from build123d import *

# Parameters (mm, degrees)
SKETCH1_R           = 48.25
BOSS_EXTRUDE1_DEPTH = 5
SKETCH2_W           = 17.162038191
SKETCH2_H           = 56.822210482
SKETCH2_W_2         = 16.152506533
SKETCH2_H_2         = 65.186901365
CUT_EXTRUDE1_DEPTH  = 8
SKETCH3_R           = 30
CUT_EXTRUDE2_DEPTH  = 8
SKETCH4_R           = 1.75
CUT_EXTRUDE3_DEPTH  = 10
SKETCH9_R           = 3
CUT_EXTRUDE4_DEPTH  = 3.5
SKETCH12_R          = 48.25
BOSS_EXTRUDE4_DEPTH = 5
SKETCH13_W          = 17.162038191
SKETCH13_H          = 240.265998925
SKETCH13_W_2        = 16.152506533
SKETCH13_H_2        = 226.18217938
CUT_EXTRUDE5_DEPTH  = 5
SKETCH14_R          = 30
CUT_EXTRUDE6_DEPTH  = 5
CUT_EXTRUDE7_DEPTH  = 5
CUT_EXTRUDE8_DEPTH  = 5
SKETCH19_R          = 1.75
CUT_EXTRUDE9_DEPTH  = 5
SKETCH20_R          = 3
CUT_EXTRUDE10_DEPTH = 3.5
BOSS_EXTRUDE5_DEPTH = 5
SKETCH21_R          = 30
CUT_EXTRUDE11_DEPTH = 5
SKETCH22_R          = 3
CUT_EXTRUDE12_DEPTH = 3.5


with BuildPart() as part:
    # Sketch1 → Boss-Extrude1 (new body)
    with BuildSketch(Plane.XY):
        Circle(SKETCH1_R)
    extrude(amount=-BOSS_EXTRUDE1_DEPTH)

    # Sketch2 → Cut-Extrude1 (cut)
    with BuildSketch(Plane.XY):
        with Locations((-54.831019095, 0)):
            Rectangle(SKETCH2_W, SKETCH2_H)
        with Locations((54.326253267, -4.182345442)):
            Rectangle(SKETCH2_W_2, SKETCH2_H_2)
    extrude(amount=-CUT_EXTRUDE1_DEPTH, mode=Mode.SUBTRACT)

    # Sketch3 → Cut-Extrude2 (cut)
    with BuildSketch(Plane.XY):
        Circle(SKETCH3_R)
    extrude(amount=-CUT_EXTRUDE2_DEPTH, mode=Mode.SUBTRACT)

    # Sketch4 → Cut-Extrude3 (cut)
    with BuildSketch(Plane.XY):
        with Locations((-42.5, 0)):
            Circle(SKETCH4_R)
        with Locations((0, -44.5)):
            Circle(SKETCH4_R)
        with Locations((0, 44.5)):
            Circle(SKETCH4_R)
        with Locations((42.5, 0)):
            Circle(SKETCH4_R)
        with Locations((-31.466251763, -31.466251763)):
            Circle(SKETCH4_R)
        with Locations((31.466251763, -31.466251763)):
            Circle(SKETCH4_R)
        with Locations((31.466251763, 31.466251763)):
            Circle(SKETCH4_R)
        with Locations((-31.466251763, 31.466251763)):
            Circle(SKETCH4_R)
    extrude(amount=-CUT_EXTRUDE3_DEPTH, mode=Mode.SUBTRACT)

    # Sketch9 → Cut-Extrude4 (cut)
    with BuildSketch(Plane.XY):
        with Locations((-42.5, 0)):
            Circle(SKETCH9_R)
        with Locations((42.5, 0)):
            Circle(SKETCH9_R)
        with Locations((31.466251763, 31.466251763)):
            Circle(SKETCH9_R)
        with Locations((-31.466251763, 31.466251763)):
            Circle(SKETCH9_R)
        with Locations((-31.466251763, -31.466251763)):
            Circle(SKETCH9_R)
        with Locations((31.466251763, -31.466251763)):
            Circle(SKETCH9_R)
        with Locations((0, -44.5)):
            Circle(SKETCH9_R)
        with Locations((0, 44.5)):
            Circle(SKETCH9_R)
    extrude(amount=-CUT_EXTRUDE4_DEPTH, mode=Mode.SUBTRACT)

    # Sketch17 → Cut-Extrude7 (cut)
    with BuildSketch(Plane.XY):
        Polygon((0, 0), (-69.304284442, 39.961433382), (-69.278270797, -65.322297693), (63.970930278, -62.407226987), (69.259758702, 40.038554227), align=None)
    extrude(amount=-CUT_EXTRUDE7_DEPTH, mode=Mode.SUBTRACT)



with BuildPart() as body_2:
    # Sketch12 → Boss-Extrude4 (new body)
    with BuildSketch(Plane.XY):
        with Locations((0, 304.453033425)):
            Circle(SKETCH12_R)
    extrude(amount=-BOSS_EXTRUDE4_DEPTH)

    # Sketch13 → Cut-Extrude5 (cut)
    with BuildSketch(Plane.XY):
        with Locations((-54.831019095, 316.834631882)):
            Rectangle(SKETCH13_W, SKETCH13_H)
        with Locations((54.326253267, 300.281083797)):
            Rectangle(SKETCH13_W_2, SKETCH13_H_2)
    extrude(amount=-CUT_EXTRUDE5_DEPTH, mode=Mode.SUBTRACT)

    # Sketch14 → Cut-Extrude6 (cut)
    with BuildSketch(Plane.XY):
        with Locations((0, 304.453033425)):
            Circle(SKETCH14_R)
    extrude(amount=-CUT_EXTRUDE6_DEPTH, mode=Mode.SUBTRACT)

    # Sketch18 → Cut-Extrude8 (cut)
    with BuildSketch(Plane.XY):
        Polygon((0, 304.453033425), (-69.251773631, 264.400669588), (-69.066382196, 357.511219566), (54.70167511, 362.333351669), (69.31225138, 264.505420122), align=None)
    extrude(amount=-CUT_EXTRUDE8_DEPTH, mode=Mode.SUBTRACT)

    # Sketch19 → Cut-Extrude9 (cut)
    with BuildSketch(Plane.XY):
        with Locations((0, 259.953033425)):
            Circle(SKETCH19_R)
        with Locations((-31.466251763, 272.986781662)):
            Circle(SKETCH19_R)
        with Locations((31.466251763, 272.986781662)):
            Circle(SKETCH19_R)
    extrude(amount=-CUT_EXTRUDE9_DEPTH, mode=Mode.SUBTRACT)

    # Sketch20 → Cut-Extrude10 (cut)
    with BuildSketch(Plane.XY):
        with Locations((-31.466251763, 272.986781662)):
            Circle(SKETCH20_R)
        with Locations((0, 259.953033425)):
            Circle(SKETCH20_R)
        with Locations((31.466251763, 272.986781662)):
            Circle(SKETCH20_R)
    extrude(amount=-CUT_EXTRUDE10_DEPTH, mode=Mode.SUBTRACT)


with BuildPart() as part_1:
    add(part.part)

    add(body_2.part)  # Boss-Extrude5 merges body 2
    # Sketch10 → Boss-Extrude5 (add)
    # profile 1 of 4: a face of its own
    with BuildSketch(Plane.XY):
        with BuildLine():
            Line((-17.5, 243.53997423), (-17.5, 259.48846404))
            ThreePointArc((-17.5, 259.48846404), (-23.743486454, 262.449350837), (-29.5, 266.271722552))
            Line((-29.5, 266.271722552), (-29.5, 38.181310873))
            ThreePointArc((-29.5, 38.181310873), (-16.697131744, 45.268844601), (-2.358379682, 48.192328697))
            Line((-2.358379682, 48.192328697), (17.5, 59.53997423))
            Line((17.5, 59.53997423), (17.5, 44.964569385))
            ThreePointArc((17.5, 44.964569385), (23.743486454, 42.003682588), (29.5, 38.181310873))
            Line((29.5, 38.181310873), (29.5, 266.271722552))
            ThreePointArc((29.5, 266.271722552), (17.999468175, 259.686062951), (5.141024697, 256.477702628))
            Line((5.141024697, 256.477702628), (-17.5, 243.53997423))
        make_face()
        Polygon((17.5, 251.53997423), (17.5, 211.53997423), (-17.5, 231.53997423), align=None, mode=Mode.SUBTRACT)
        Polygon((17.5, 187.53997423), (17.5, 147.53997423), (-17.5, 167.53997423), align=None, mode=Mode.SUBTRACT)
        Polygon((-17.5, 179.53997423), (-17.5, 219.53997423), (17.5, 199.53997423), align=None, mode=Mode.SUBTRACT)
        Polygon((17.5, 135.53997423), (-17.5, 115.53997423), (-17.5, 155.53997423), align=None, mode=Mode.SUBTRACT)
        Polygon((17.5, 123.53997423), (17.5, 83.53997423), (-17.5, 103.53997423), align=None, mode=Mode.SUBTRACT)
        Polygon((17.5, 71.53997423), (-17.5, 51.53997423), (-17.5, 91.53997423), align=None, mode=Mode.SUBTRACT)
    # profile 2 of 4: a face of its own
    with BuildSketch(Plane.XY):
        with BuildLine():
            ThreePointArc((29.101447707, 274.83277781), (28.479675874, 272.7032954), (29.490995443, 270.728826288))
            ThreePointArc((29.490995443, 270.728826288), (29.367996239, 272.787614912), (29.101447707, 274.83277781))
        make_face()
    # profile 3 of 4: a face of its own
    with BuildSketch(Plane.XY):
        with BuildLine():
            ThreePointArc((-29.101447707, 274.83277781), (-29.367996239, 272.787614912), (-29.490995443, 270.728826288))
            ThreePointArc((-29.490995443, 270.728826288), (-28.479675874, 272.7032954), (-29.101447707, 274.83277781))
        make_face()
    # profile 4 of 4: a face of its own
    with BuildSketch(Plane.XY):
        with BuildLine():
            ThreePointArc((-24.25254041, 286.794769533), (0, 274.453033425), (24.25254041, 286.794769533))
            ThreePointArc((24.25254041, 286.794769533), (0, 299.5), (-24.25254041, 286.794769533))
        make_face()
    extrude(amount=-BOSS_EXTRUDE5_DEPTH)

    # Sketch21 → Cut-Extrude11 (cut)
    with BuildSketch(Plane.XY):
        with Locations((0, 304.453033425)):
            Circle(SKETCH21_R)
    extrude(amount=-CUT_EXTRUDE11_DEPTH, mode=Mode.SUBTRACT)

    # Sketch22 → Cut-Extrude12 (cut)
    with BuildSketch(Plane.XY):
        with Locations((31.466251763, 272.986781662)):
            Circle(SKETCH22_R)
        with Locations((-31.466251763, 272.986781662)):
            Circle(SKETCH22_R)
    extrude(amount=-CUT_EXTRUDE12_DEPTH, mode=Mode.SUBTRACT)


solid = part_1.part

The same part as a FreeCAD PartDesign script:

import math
import FreeCAD as App
import Part
import Sketcher
from FreeCAD import Vector

doc = App.newDocument("Part")
params = doc.addObject("Spreadsheet::Sheet", "Params")
for row, (alias, value) in enumerate([
    ("sketch1_diameter", "96.5 mm"),
    ("pad1_length", "5 mm"),
    ("pocket1_length", "8 mm"),
    ("sketch3_diameter", "60 mm"),
    ("pocket2_length", "8 mm"),
    ("sketch4_diameter", "3.5 mm"),
    ("pocket3_length", "10 mm"),
    ("sketch5_diameter", "6 mm"),
    ("pocket4_length", "3.5 mm"),
    ("sketch6_length", "80 mm"),
    ("pocket5_length", "5 mm"),
    ("sketch7_diameter", "96.5 mm"),
    ("pad2_length", "5 mm"),
    ("pocket6_length", "5 mm"),
    ("sketch9_diameter", "60 mm"),
    ("pocket7_length", "5 mm"),
    ("sketch10_length", "80 mm"),
    ("pocket8_length", "5 mm"),
    ("sketch11_diameter", "3.5 mm"),
    ("pocket9_length", "5 mm"),
    ("sketch12_diameter", "6 mm"),
    ("pocket10_length", "3.5 mm"),
    ("sketch13_radius", "3 mm"),
    ("sketch13_radius2", "30 mm"),
    ("sketch13_radius3", "29.5 mm"),
    ("sketch13_height", "40 mm"),
    ("sketch13_radius4", "48.25 mm"),
    ("pad3_length", "5 mm"),
    ("sketch14_diameter", "60 mm"),
    ("pocket11_length", "5 mm"),
    ("sketch15_diameter", "6 mm"),
    ("pocket12_length", "3.5 mm"),
], start=1):
    params.set(f"A{row}", alias)
    params.set(f"B{row}", "=" + value)
    params.setAlias(f"B{row}", alias)

body = doc.addObject("PartDesign::Body", "Body")

# Sketch on XY plane
sketch1 = doc.addObject("Sketcher::SketchObject", "Sketch")
body.addObject(sketch1)
sketch1.AttachmentSupport = (doc.XY_Plane, [""])
sketch1.MapMode = "FlatFace"
sketch1.addGeometry(Part.Circle(Vector(0, 0, 0), Vector(0, 0, 1), 48), False)
sketch1.addConstraint([
    Sketcher.Constraint("Coincident", 0, 3, -1, 1),
    Sketcher.Constraint("Diameter", 0, 96.5),
])
sketch1.setExpression("Constraints[1]", "Params.sketch1_diameter")
pad1 = doc.addObject("PartDesign::Pad", "Pad")
body.addObject(pad1)
pad1.Profile = sketch1
pad1.setExpression("Length", "Params.pad1_length")
pad1.Reversed = True

# Sketch on XY plane
sketch2 = doc.addObject("Sketcher::SketchObject", "Sketch001")
body.addObject(sketch2)
sketch2.AttachmentSupport = (doc.XY_Plane, [""])
sketch2.MapMode = "FlatFace"
sketch2.addGeometry([
    Part.LineSegment(Vector(-63, 28, 0), Vector(-63, -28, 0)),  # 0
    Part.LineSegment(Vector(-63, -28, 0), Vector(-46, -28, 0)),  # 1
    Part.LineSegment(Vector(-46, -28, 0), Vector(-46, 28, 0)),  # 2
    Part.LineSegment(Vector(-46, 28, 0), Vector(-63, 28, 0)),  # 3
    Part.LineSegment(Vector(46, 28, 0), Vector(46, -37, 0)),  # 4
    Part.LineSegment(Vector(46, -37, 0), Vector(62, -37, 0)),  # 5
    Part.LineSegment(Vector(62, -37, 0), Vector(62, 28, 0)),  # 6
    Part.LineSegment(Vector(62, 28, 0), Vector(46, 28, 0)),  # 7
], False)
sketch2.addConstraint([
    Sketcher.Constraint("Coincident", 0, 2, 1, 1),
    Sketcher.Constraint("Coincident", 1, 2, 2, 1),
    Sketcher.Constraint("Coincident", 2, 2, 3, 1),
    Sketcher.Constraint("Coincident", 3, 2, 0, 1),
    Sketcher.Constraint("Coincident", 4, 2, 5, 1),
    Sketcher.Constraint("Coincident", 5, 2, 6, 1),
    Sketcher.Constraint("Coincident", 6, 2, 7, 1),
    Sketcher.Constraint("Coincident", 7, 2, 4, 1),
    Sketcher.Constraint("Vertical", 0),
    Sketcher.Constraint("Horizontal", 1),
    Sketcher.Constraint("Vertical", 2),
    Sketcher.Constraint("Horizontal", 3),
    Sketcher.Constraint("Vertical", 4),
    Sketcher.Constraint("Horizontal", 5),
    Sketcher.Constraint("Vertical", 6),
    Sketcher.Constraint("Horizontal", 7),
    Sketcher.Constraint("Symmetric", 1, 2, 7, 2, -1, 1),
    Sketcher.Constraint("Horizontal", 3, 2, 6, 2),
    Sketcher.Constraint("DistanceX", 1, 2, 4, 2, 92.5),
    Sketcher.Constraint("DistanceY", 4, 2, 4, 1, 65.186901),
    Sketcher.Constraint("DistanceX", 1, 1, 1, 2, 17.162038),
    Sketcher.Constraint("DistanceY", 0, 2, 0, 1, 56.82221),
    Sketcher.Constraint("DistanceX", 5, 1, 5, 2, 16.152507),
])
pocket1 = doc.addObject("PartDesign::Pocket", "Pocket")
body.addObject(pocket1)
pocket1.Profile = sketch2
pocket1.setExpression("Length", "Params.pocket1_length")

# Sketch on XY plane
sketch3 = doc.addObject("Sketcher::SketchObject", "Sketch002")
body.addObject(sketch3)
sketch3.AttachmentSupport = (doc.XY_Plane, [""])
sketch3.MapMode = "FlatFace"
sketch3.addGeometry(Part.Circle(Vector(0, 0, 0), Vector(0, 0, 1), 30), False)
sketch3.addConstraint([
    Sketcher.Constraint("Coincident", 0, 3, -1, 1),
    Sketcher.Constraint("Diameter", 0, 60.0),
])
sketch3.setExpression("Constraints[1]", "Params.sketch3_diameter")
pocket2 = doc.addObject("PartDesign::Pocket", "Pocket001")
body.addObject(pocket2)
pocket2.Profile = sketch3
pocket2.setExpression("Length", "Params.pocket2_length")

# Sketch on XY plane
sketch4 = doc.addObject("Sketcher::SketchObject", "Sketch003")
body.addObject(sketch4)
sketch4.AttachmentSupport = (doc.XY_Plane, [""])
sketch4.MapMode = "FlatFace"
sketch4.addGeometry([
    Part.Circle(Vector(-42.5, 0, 0), Vector(0, 0, 1), 1.8),  # 0
    Part.Circle(Vector(0, -44.5, 0), Vector(0, 0, 1), 1.8),  # 1
    Part.Circle(Vector(0, 44.5, 0), Vector(0, 0, 1), 1.8),  # 2
    Part.Circle(Vector(42.5, 0, 0), Vector(0, 0, 1), 1.8),  # 3
    Part.Circle(Vector(-31.5, -31.5, 0), Vector(0, 0, 1), 1.8),  # 4
    Part.Circle(Vector(31.5, -31.5, 0), Vector(0, 0, 1), 1.8),  # 5
    Part.Circle(Vector(31.5, 31.5, 0), Vector(0, 0, 1), 1.8),  # 6
    Part.Circle(Vector(-31.5, 31.5, 0), Vector(0, 0, 1), 1.8),  # 7
], False)
sketch4.addConstraint([
    Sketcher.Constraint("Equal", 0, 1),
    Sketcher.Constraint("Equal", 1, 2),
    Sketcher.Constraint("Equal", 2, 3),
    Sketcher.Constraint("Equal", 3, 4),
    Sketcher.Constraint("Equal", 4, 5),
    Sketcher.Constraint("Equal", 5, 6),
    Sketcher.Constraint("Equal", 6, 7),
    Sketcher.Constraint("Symmetric", 1, 3, 2, 3, -1, 1),
    Sketcher.Constraint("Symmetric", 0, 3, 3, 3, -1, 1),
    Sketcher.Constraint("Symmetric", 4, 3, 6, 3, -1, 1),
    Sketcher.Constraint("Symmetric", 5, 3, 7, 3, -1, 1),
    Sketcher.Constraint("Symmetric", 4, 3, 5, 3, -2),
    Sketcher.Constraint("PointOnObject", 0, 3, -1),
    Sketcher.Constraint("PointOnObject", 1, 3, -2),
    Sketcher.Constraint("Diameter", 0, 3.5),
    Sketcher.Constraint("DistanceY", 1, 3, 2, 3, 89.0),
    Sketcher.Constraint("DistanceX", 0, 3, 3, 3, 85.0),
    Sketcher.Constraint("DistanceX", 4, 3, -1, 1, 31.466252),
    Sketcher.Constraint("DistanceY", 4, 3, -1, 1, 31.466252),
])
sketch4.setExpression("Constraints[14]", "Params.sketch4_diameter")
pocket3 = doc.addObject("PartDesign::Pocket", "Pocket002")
body.addObject(pocket3)
pocket3.Profile = sketch4
pocket3.setExpression("Length", "Params.pocket3_length")

# Sketch on XY plane
sketch5 = doc.addObject("Sketcher::SketchObject", "Sketch004")
body.addObject(sketch5)
sketch5.AttachmentSupport = (doc.XY_Plane, [""])
sketch5.MapMode = "FlatFace"
sketch5.addGeometry([
    Part.Circle(Vector(-42.5, 0, 0), Vector(0, 0, 1), 3),  # 0
    Part.Circle(Vector(42.5, 0, 0), Vector(0, 0, 1), 3),  # 1
    Part.Circle(Vector(31.5, 31.5, 0), Vector(0, 0, 1), 3),  # 2
    Part.Circle(Vector(-31.5, 31.5, 0), Vector(0, 0, 1), 3),  # 3
    Part.Circle(Vector(-31.5, -31.5, 0), Vector(0, 0, 1), 3),  # 4
    Part.Circle(Vector(31.5, -31.5, 0), Vector(0, 0, 1), 3),  # 5
    Part.Circle(Vector(0, -44.5, 0), Vector(0, 0, 1), 3),  # 6
    Part.Circle(Vector(0, 44.5, 0), Vector(0, 0, 1), 3),  # 7
], False)
sketch5.addConstraint([
    Sketcher.Constraint("Equal", 0, 1),
    Sketcher.Constraint("Equal", 1, 2),
    Sketcher.Constraint("Equal", 2, 3),
    Sketcher.Constraint("Equal", 3, 4),
    Sketcher.Constraint("Equal", 4, 5),
    Sketcher.Constraint("Equal", 5, 6),
    Sketcher.Constraint("Equal", 6, 7),
    Sketcher.Constraint("Symmetric", 0, 3, 1, 3, -1, 1),
    Sketcher.Constraint("Symmetric", 2, 3, 4, 3, -1, 1),
    Sketcher.Constraint("Symmetric", 3, 3, 5, 3, -1, 1),
    Sketcher.Constraint("Symmetric", 6, 3, 7, 3, -1, 1),
    Sketcher.Constraint("Symmetric", 2, 3, 3, 3, -2),
    Sketcher.Constraint("PointOnObject", 0, 3, -1),
    Sketcher.Constraint("PointOnObject", 6, 3, -2),
    Sketcher.Constraint("Diameter", 0, 6.0),
    Sketcher.Constraint("DistanceX", 0, 3, 1, 3, 85.0),
    Sketcher.Constraint("DistanceY", 6, 3, -1, 1, 44.5),
    Sketcher.Constraint("DistanceX", -1, 1, 2, 3, 31.466252),
    Sketcher.Constraint("DistanceY", -1, 1, 2, 3, 31.466252),
])
sketch5.setExpression("Constraints[14]", "Params.sketch5_diameter")
pocket4 = doc.addObject("PartDesign::Pocket", "Pocket003")
body.addObject(pocket4)
pocket4.Profile = sketch5
pocket4.setExpression("Length", "Params.pocket4_length")

# Sketch on XY plane
sketch6 = doc.addObject("Sketcher::SketchObject", "Sketch005")
body.addObject(sketch6)
sketch6.AttachmentSupport = (doc.XY_Plane, [""])
sketch6.MapMode = "FlatFace"
sketch6.addGeometry([
    Part.LineSegment(Vector(0, 0, 0), Vector(-69, 40, 0)),  # 0
    Part.LineSegment(Vector(-69, 40, 0), Vector(-69, -65, 0)),  # 1
    Part.LineSegment(Vector(-69, -65, 0), Vector(64, -62, 0)),  # 2
    Part.LineSegment(Vector(64, -62, 0), Vector(69, 40, 0)),  # 3
    Part.LineSegment(Vector(69, 40, 0), Vector(0, 0, 0)),  # 4
], False)
sketch6.addConstraint([
    Sketcher.Constraint("Coincident", 0, 2, 1, 1),
    Sketcher.Constraint("Coincident", 1, 2, 2, 1),
    Sketcher.Constraint("Coincident", 2, 2, 3, 1),
    Sketcher.Constraint("Coincident", 3, 2, 4, 1),
    Sketcher.Constraint("Coincident", 4, 2, 0, 1),
    Sketcher.Constraint("Coincident", 4, 2, -1, 1),
    Sketcher.Constraint("Equal", 0, 4),
    Sketcher.Constraint("Distance", 0, 80.0),
    Sketcher.Constraint("DistanceX", 1, 2, 2, 2, 133.249201),
    Sketcher.Constraint("Distance", 3, 102.58221),
    Sketcher.Constraint("DistanceX", 1, 2, -1, 1, 69.278271),
    Sketcher.Constraint("DistanceX", -1, 1, 3, 2, 69.259759),
    Sketcher.Constraint("DistanceY", 1, 2, 0, 2, 105.283731),
    Sketcher.Constraint("DistanceY", 1, 2, 2, 2, 2.915071),
])
sketch6.setExpression("Constraints[7]", "Params.sketch6_length")
pocket5 = doc.addObject("PartDesign::Pocket", "Pocket004")
body.addObject(pocket5)
pocket5.Profile = sketch6
pocket5.setExpression("Length", "Params.pocket5_length")
body2 = doc.addObject("PartDesign::Body", "Body001")

# Sketch on XY plane
sketch7 = doc.addObject("Sketcher::SketchObject", "Sketch006")
body2.addObject(sketch7)
sketch7.AttachmentSupport = (doc.getObject("XY_Plane001"), [""])
sketch7.MapMode = "FlatFace"
sketch7.addGeometry(Part.Circle(Vector(0, 304, 0), Vector(0, 0, 1), 48), False)
sketch7.addConstraint([
    Sketcher.Constraint("PointOnObject", 0, 3, -2),
    Sketcher.Constraint("Diameter", 0, 96.5),
    Sketcher.Constraint("DistanceY", -1, 1, 0, 3, 304.453033),
])
sketch7.setExpression("Constraints[1]", "Params.sketch7_diameter")
pad2 = doc.addObject("PartDesign::Pad", "Pad001")
body2.addObject(pad2)
pad2.Profile = sketch7
pad2.setExpression("Length", "Params.pad2_length")
pad2.Reversed = True

# Sketch on XY plane
sketch8 = doc.addObject("Sketcher::SketchObject", "Sketch007")
body2.addObject(sketch8)
sketch8.AttachmentSupport = (doc.getObject("XY_Plane001"), [""])
sketch8.MapMode = "FlatFace"
sketch8.addGeometry([
    Part.LineSegment(Vector(-63, 437, 0), Vector(-63, 197, 0)),  # 0
    Part.LineSegment(Vector(-63, 197, 0), Vector(-46, 197, 0)),  # 1
    Part.LineSegment(Vector(-46, 197, 0), Vector(-46, 437, 0)),  # 2
    Part.LineSegment(Vector(-46, 437, 0), Vector(-63, 437, 0)),  # 3
    Part.LineSegment(Vector(46, 413, 0), Vector(46, 187, 0)),  # 4
    Part.LineSegment(Vector(46, 187, 0), Vector(62, 187, 0)),  # 5
    Part.LineSegment(Vector(62, 187, 0), Vector(62, 413, 0)),  # 6
    Part.LineSegment(Vector(62, 413, 0), Vector(46, 413, 0)),  # 7
], False)
sketch8.addConstraint([
    Sketcher.Constraint("Coincident", 0, 2, 1, 1),
    Sketcher.Constraint("Coincident", 1, 2, 2, 1),
    Sketcher.Constraint("Coincident", 2, 2, 3, 1),
    Sketcher.Constraint("Coincident", 3, 2, 0, 1),
    Sketcher.Constraint("Coincident", 4, 2, 5, 1),
    Sketcher.Constraint("Coincident", 5, 2, 6, 1),
    Sketcher.Constraint("Coincident", 6, 2, 7, 1),
    Sketcher.Constraint("Coincident", 7, 2, 4, 1),
    Sketcher.Constraint("Vertical", 0),
    Sketcher.Constraint("Horizontal", 1),
    Sketcher.Constraint("Vertical", 2),
    Sketcher.Constraint("Horizontal", 3),
    Sketcher.Constraint("Vertical", 4),
    Sketcher.Constraint("Horizontal", 5),
    Sketcher.Constraint("Vertical", 6),
    Sketcher.Constraint("Horizontal", 7),
    Sketcher.Constraint("DistanceX", 1, 2, 4, 2, 92.5),
    Sketcher.Constraint("DistanceY", 0, 2, 0, 1, 240.265999),
    Sketcher.Constraint("DistanceX", 1, 2, -1, 1, 46.25),
    Sketcher.Constraint("DistanceX", 1, 1, 1, 2, 17.162038),
    Sketcher.Constraint("DistanceY", 4, 2, 4, 1, 226.182179),
    Sketcher.Constraint("DistanceX", 5, 1, 5, 2, 16.152507),
    Sketcher.Constraint("DistanceY", -1, 1, 2, 2, 436.967631),
    Sketcher.Constraint("DistanceY", 4, 2, 1, 2, 9.511638),
])
pocket6 = doc.addObject("PartDesign::Pocket", "Pocket005")
body2.addObject(pocket6)
pocket6.Profile = sketch8
pocket6.setExpression("Length", "Params.pocket6_length")

# Sketch on XY plane
sketch9 = doc.addObject("Sketcher::SketchObject", "Sketch008")
body2.addObject(sketch9)
sketch9.AttachmentSupport = (doc.getObject("XY_Plane001"), [""])
sketch9.MapMode = "FlatFace"
sketch9.addGeometry(Part.Circle(Vector(0, 304, 0), Vector(0, 0, 1), 30), False)
sketch9.addConstraint([
    Sketcher.Constraint("PointOnObject", 0, 3, -2),
    Sketcher.Constraint("Diameter", 0, 60.0),
    Sketcher.Constraint("DistanceY", -1, 1, 0, 3, 304.453033),
])
sketch9.setExpression("Constraints[1]", "Params.sketch9_diameter")
pocket7 = doc.addObject("PartDesign::Pocket", "Pocket006")
body2.addObject(pocket7)
pocket7.Profile = sketch9
pocket7.setExpression("Length", "Params.pocket7_length")

# Sketch on XY plane
sketch10 = doc.addObject("Sketcher::SketchObject", "Sketch009")
body2.addObject(sketch10)
sketch10.AttachmentSupport = (doc.getObject("XY_Plane001"), [""])
sketch10.MapMode = "FlatFace"
sketch10.addGeometry([
    Part.LineSegment(Vector(-69, 264, 0), Vector(0, 304, 0)),  # 0
    Part.LineSegment(Vector(0, 304, 0), Vector(69, 265, 0)),  # 1
    Part.LineSegment(Vector(69, 265, 0), Vector(55, 362, 0)),  # 2
    Part.LineSegment(Vector(55, 362, 0), Vector(-69, 358, 0)),  # 3
    Part.LineSegment(Vector(-69, 358, 0), Vector(-69, 264, 0)),  # 4
], False)
sketch10.addConstraint([
    Sketcher.Constraint("Coincident", 0, 2, 1, 1),
    Sketcher.Constraint("Coincident", 1, 2, 2, 1),
    Sketcher.Constraint("Coincident", 2, 2, 3, 1),
    Sketcher.Constraint("Coincident", 3, 2, 4, 1),
    Sketcher.Constraint("Coincident", 4, 2, 0, 1),
    Sketcher.Constraint("PointOnObject", 0, 2, -2),
    Sketcher.Constraint("Equal", 0, 1),
    Sketcher.Constraint("Distance", 0, 80.0),
    Sketcher.Constraint("DistanceY", 1, 2, 3, 2, 93.005799),
    Sketcher.Constraint("Distance", 3, 123.861959),
    Sketcher.Constraint("DistanceX", -1, 1, 1, 2, 69.312251),
    Sketcher.Constraint("DistanceY", -1, 1, 1, 2, 264.50542),
    Sketcher.Constraint("DistanceY", -1, 1, 2, 2, 362.333352),
    Sketcher.Constraint("DistanceY", -1, 1, 4, 2, 264.40067),
    Sketcher.Constraint("DistanceX", 4, 2, 3, 2, 0.185391),
])
sketch10.setExpression("Constraints[7]", "Params.sketch10_length")
pocket8 = doc.addObject("PartDesign::Pocket", "Pocket007")
body2.addObject(pocket8)
pocket8.Profile = sketch10
pocket8.setExpression("Length", "Params.pocket8_length")

# Sketch on XY plane
sketch11 = doc.addObject("Sketcher::SketchObject", "Sketch010")
body2.addObject(sketch11)
sketch11.AttachmentSupport = (doc.getObject("XY_Plane001"), [""])
sketch11.MapMode = "FlatFace"
sketch11.addGeometry([
    Part.Circle(Vector(0, 260, 0), Vector(0, 0, 1), 1.8),
    Part.Circle(Vector(-31.5, 273, 0), Vector(0, 0, 1), 1.8),
    Part.Circle(Vector(31.5, 273, 0), Vector(0, 0, 1), 1.8),
], False)
sketch11.addConstraint([
    Sketcher.Constraint("Equal", 0, 1),
    Sketcher.Constraint("Equal", 1, 2),
    Sketcher.Constraint("Symmetric", 1, 3, 2, 3, -2),
    Sketcher.Constraint("PointOnObject", 0, 3, -2),
    Sketcher.Constraint("Diameter", 0, 3.5),
    Sketcher.Constraint("DistanceX", 1, 3, -1, 1, 31.466252),
    Sketcher.Constraint("DistanceY", -1, 1, 1, 3, 272.986782),
    Sketcher.Constraint("DistanceY", 0, 3, 1, 3, 13.033748),
])
sketch11.setExpression("Constraints[4]", "Params.sketch11_diameter")
pocket9 = doc.addObject("PartDesign::Pocket", "Pocket008")
body2.addObject(pocket9)
pocket9.Profile = sketch11
pocket9.setExpression("Length", "Params.pocket9_length")

# Sketch on XY plane
sketch12 = doc.addObject("Sketcher::SketchObject", "Sketch011")
body2.addObject(sketch12)
sketch12.AttachmentSupport = (doc.getObject("XY_Plane001"), [""])
sketch12.MapMode = "FlatFace"
sketch12.addGeometry([
    Part.Circle(Vector(-31.5, 273, 0), Vector(0, 0, 1), 3),
    Part.Circle(Vector(0, 260, 0), Vector(0, 0, 1), 3),
    Part.Circle(Vector(31.5, 273, 0), Vector(0, 0, 1), 3),
], False)
sketch12.addConstraint([
    Sketcher.Constraint("Equal", 0, 1),
    Sketcher.Constraint("Equal", 1, 2),
    Sketcher.Constraint("Symmetric", 0, 3, 2, 3, -2),
    Sketcher.Constraint("PointOnObject", 1, 3, -2),
    Sketcher.Constraint("Diameter", 0, 6.0),
    Sketcher.Constraint("DistanceX", 0, 3, -1, 1, 31.466252),
    Sketcher.Constraint("DistanceY", -1, 1, 0, 3, 272.986782),
    Sketcher.Constraint("DistanceY", 1, 3, 0, 3, 13.033748),
])
sketch12.setExpression("Constraints[4]", "Params.sketch12_diameter")
pocket10 = doc.addObject("PartDesign::Pocket", "Pocket009")
body2.addObject(pocket10)
pocket10.Profile = sketch12
pocket10.setExpression("Length", "Params.pocket10_length")
body.AllowCompound = True
doc.recompute()

boolean = doc.addObject("PartDesign::Boolean", "Boolean")
body.addObject(boolean)
boolean.Type = "Fuse"
boolean.addObjects([body2])

# Sketch on XY plane
sketch13 = doc.addObject("Sketcher::SketchObject", "Sketch012")
body.addObject(sketch13)
sketch13.AttachmentSupport = (doc.XY_Plane, [""])
sketch13.MapMode = "FlatFace"
sketch13.addGeometry([
    Part.LineSegment(Vector(-17.5, 243.5, 0), Vector(-17.5, 259.5, 0)),  # 0
    Part.ArcOfCircle(Part.Circle(Vector(0, 304.5, 0), Vector(0, 0, 1), 48.3), math.radians(-127.69), math.radians(-111.27)),  # 1
    Part.LineSegment(Vector(-29.5, 266.3, 0), Vector(-29.5, 38.2, 0)),  # 2
    Part.ArcOfCircle(Part.Circle(Vector(0, 0, 0), Vector(0, 0, 1), 48.2), math.radians(93), math.radians(128)),  # 3
    Part.LineSegment(Vector(-2.4, 48.2, 0), Vector(17.5, 59.5, 0)),  # 4
    Part.LineSegment(Vector(17.5, 59.5, 0), Vector(17.5, 45, 0)),  # 5
    Part.ArcOfCircle(Part.Circle(Vector(0, 0, 0), Vector(0, 0, 1), 48.3), math.radians(52.31), math.radians(68.73)),  # 6
    Part.LineSegment(Vector(29.5, 38.2, 0), Vector(29.5, 266.3, 0)),  # 7
    Part.ArcOfCircle(Part.Circle(Vector(0, 304.5, 0), Vector(0, 0, 1), 48.2), math.radians(-84), math.radians(-52)),  # 8
    Part.LineSegment(Vector(5.1, 256.5, 0), Vector(-17.5, 243.5, 0)),  # 9
    Part.LineSegment(Vector(-17.5, 91.5, 0), Vector(17.5, 71.5, 0)),  # 10
    Part.LineSegment(Vector(17.5, 71.5, 0), Vector(-17.5, 51.5, 0)),  # 11
    Part.LineSegment(Vector(-17.5, 51.5, 0), Vector(-17.5, 91.5, 0)),  # 12
    Part.LineSegment(Vector(-17.5, 103.5, 0), Vector(17.5, 123.5, 0)),  # 13
    Part.LineSegment(Vector(17.5, 123.5, 0), Vector(17.5, 83.5, 0)),  # 14
    Part.LineSegment(Vector(17.5, 83.5, 0), Vector(-17.5, 103.5, 0)),  # 15
    Part.LineSegment(Vector(-17.5, 155.5, 0), Vector(17.5, 135.5, 0)),  # 16
    Part.LineSegment(Vector(17.5, 135.5, 0), Vector(-17.5, 115.5, 0)),  # 17
    Part.LineSegment(Vector(-17.5, 115.5, 0), Vector(-17.5, 155.5, 0)),  # 18
    Part.LineSegment(Vector(-17.5, 167.5, 0), Vector(17.5, 187.5, 0)),  # 19
    Part.LineSegment(Vector(17.5, 187.5, 0), Vector(17.5, 147.5, 0)),  # 20
    Part.LineSegment(Vector(17.5, 147.5, 0), Vector(-17.5, 167.5, 0)),  # 21
    Part.LineSegment(Vector(17.5, 199.5, 0), Vector(-17.5, 179.5, 0)),  # 22
    Part.LineSegment(Vector(-17.5, 179.5, 0), Vector(-17.5, 219.5, 0)),  # 23
    Part.LineSegment(Vector(-17.5, 219.5, 0), Vector(17.5, 199.5, 0)),  # 24
    Part.LineSegment(Vector(-17.5, 231.5, 0), Vector(17.5, 251.5, 0)),  # 25
    Part.LineSegment(Vector(17.5, 251.5, 0), Vector(17.5, 211.5, 0)),  # 26
    Part.LineSegment(Vector(17.5, 211.5, 0), Vector(-17.5, 231.5, 0)),  # 27
    Part.ArcOfCircle(Part.Circle(Vector(31.5, 273, 0), Vector(0, 0, 1), 3), math.radians(142), math.radians(229)),  # 28
    Part.ArcOfCircle(Part.Circle(Vector(0, 270, 0), Vector(0, 0, 1), 29.5), math.radians(1.42), math.radians(9.43)),  # 29
    Part.ArcOfCircle(Part.Circle(Vector(0, 270, 0), Vector(0, 0, 1), 29.5), math.radians(170.57), math.radians(178.58)),  # 30
    Part.ArcOfCircle(Part.Circle(Vector(-31.5, 273, 0), Vector(0, 0, 1), 3), math.radians(-49), math.radians(38)),  # 31
    Part.ArcOfCircle(Part.Circle(Vector(0, 304.5, 0), Vector(0, 0, 1), 30), math.radians(-144), math.radians(-36)),  # 32
    Part.ArcOfCircle(Part.Circle(Vector(0, 270, 0), Vector(0, 0, 1), 29.5), math.radians(35), math.radians(145)),  # 33
], False)
sketch13.addConstraint([
    Sketcher.Constraint("Coincident", 0, 2, 1, 2),
    Sketcher.Constraint("Coincident", 1, 1, 2, 1),
    Sketcher.Constraint("Coincident", 2, 2, 3, 2),
    Sketcher.Constraint("Coincident", 3, 1, 4, 1),
    Sketcher.Constraint("Coincident", 4, 2, 5, 1),
    Sketcher.Constraint("Coincident", 5, 2, 6, 2),
    Sketcher.Constraint("Coincident", 6, 1, 7, 1),
    Sketcher.Constraint("Coincident", 7, 2, 8, 2),
    Sketcher.Constraint("Coincident", 8, 1, 9, 1),
    Sketcher.Constraint("Coincident", 9, 2, 0, 1),
    Sketcher.Constraint("Coincident", 10, 2, 11, 1),
    Sketcher.Constraint("Coincident", 11, 2, 12, 1),
    Sketcher.Constraint("Coincident", 12, 2, 10, 1),
    Sketcher.Constraint("Coincident", 13, 2, 14, 1),
    Sketcher.Constraint("Coincident", 14, 2, 15, 1),
    Sketcher.Constraint("Coincident", 15, 2, 13, 1),
    Sketcher.Constraint("Coincident", 16, 2, 17, 1),
    Sketcher.Constraint("Coincident", 17, 2, 18, 1),
    Sketcher.Constraint("Coincident", 18, 2, 16, 1),
    Sketcher.Constraint("Coincident", 19, 2, 20, 1),
    Sketcher.Constraint("Coincident", 20, 2, 21, 1),
    Sketcher.Constraint("Coincident", 21, 2, 19, 1),
    Sketcher.Constraint("Coincident", 22, 2, 23, 1),
    Sketcher.Constraint("Coincident", 23, 2, 24, 1),
    Sketcher.Constraint("Coincident", 24, 2, 22, 1),
    Sketcher.Constraint("Coincident", 25, 2, 26, 1),
    Sketcher.Constraint("Coincident", 26, 2, 27, 1),
    Sketcher.Constraint("Coincident", 27, 2, 25, 1),
    Sketcher.Constraint("Coincident", 28, 1, 29, 2),
    Sketcher.Constraint("Coincident", 29, 1, 28, 2),
    Sketcher.Constraint("Coincident", 30, 1, 31, 2),
    Sketcher.Constraint("Coincident", 31, 1, 30, 2),
    Sketcher.Constraint("Coincident", 32, 1, 33, 2),
    Sketcher.Constraint("Coincident", 33, 1, 32, 2),
    Sketcher.Constraint("Vertical", 0),
    Sketcher.Constraint("Vertical", 2),
    Sketcher.Constraint("Vertical", 5),
    Sketcher.Constraint("Vertical", 7),
    Sketcher.Constraint("Vertical", 12),
    Sketcher.Constraint("Vertical", 14),
    Sketcher.Constraint("Vertical", 18),
    Sketcher.Constraint("Vertical", 20),
    Sketcher.Constraint("Vertical", 23),
    Sketcher.Constraint("Vertical", 26),
    Sketcher.Constraint("Coincident", 3, 3, -1, 1),
    Sketcher.Constraint("Coincident", 6, 3, -1, 1),
    Sketcher.Constraint("Coincident", 8, 3, 1, 3),
    Sketcher.Constraint("Coincident", 30, 3, 29, 3),
    Sketcher.Constraint("Coincident", 32, 3, 1, 3),
    Sketcher.Constraint("Coincident", 33, 3, 29, 3),
    Sketcher.Constraint("Equal", 1, 3),
    Sketcher.Constraint("Equal", 3, 6),
    Sketcher.Constraint("Equal", 6, 8),
    Sketcher.Constraint("Equal", 29, 30),
    Sketcher.Constraint("Equal", 28, 31),
    Sketcher.Constraint("Equal", 30, 33),
    Sketcher.Constraint("Symmetric", 28, 3, 31, 3, -2),
    Sketcher.Constraint("Symmetric", 1, 1, 7, 2, -2),
    Sketcher.Constraint("PointOnObject", 29, 3, -2),
    Sketcher.Constraint("Parallel", 4, 9),
    Sketcher.Constraint("Parallel", 9, 11),
    Sketcher.Constraint("Parallel", 11, 13),
    Sketcher.Constraint("Parallel", 10, 15),
    Sketcher.Constraint("Parallel", 15, 16),
    Sketcher.Constraint("Parallel", 13, 17),
    Sketcher.Constraint("Parallel", 17, 19),
    Sketcher.Constraint("Parallel", 16, 21),
    Sketcher.Constraint("Parallel", 19, 22),
    Sketcher.Constraint("Parallel", 21, 24),
    Sketcher.Constraint("Parallel", 22, 25),
    Sketcher.Constraint("Parallel", 24, 27),
    Sketcher.Constraint("Vertical", 5, 2, 10, 2),
    Sketcher.Constraint("Vertical", 9, 2, 11, 2),
    Sketcher.Constraint("Vertical", 10, 2, 13, 2),
    Sketcher.Constraint("Vertical", 12, 2, 15, 2),
    Sketcher.Constraint("Vertical", 14, 2, 16, 2),
    Sketcher.Constraint("Vertical", 15, 2, 17, 2),
    Sketcher.Constraint("Vertical", 16, 2, 19, 2),
    Sketcher.Constraint("Vertical", 18, 2, 21, 2),
    Sketcher.Constraint("Vertical", 21, 2, 22, 2),
    Sketcher.Constraint("Vertical", 20, 2, 24, 2),
    Sketcher.Constraint("Vertical", 24, 2, 25, 2),
    Sketcher.Constraint("Vertical", 23, 2, 27, 2),
    Sketcher.Constraint("Equal", 10, 11),
    Sketcher.Constraint("Radius", 28, 3.0),
    Sketcher.Constraint("Radius", 32, 30.0),
    Sketcher.Constraint("Radius", 29, 29.5),
    Sketcher.Constraint("DistanceY", 12, 1, 12, 2, 40.0),
    Sketcher.Constraint("Radius", 1, 48.25),
    Sketcher.Constraint("DistanceY", -1, 1, 29, 3, 270.0),
    Sketcher.Constraint("DistanceX", 1, 1, 0, 2, 12.0),
    Sketcher.Constraint("DistanceX", 2, 2, 4, 2, 47.0),
    Sketcher.Constraint("DistanceX", 5, 2, 6, 1, 12.0),
    Sketcher.Constraint("DistanceY", 4, 2, 10, 2, 12.0),
    Sketcher.Constraint("DistanceY", 12, 2, 13, 2, 32.0),
    Sketcher.Constraint("DistanceY", 13, 2, 16, 2, 12.0),
    Sketcher.Constraint("DistanceY", 18, 2, 19, 2, 32.0),
    Sketcher.Constraint("DistanceY", 19, 2, 9, 2, 56.0),
    Sketcher.Constraint("DistanceY", 21, 2, 22, 2, 12.0),
    Sketcher.Constraint("DistanceY", 24, 2, 26, 2, 12.0),
    Sketcher.Constraint("DistanceY", 0, 1, 0, 2, 15.94849),
    Sketcher.Constraint("DistanceY", 2, 2, 2, 1, 228.090412),
    Sketcher.Constraint("DistanceX", -1, 1, 28, 3, 31.466252),
    Sketcher.Constraint("DistanceY", -1, 1, 28, 3, 272.986782),
])
sketch13.setExpression("Constraints[84]", "Params.sketch13_radius")
sketch13.setExpression("Constraints[85]", "Params.sketch13_radius2")
sketch13.setExpression("Constraints[86]", "Params.sketch13_radius3")
sketch13.setExpression("Constraints[87]", "Params.sketch13_height")
sketch13.setExpression("Constraints[88]", "Params.sketch13_radius4")
pad3 = doc.addObject("PartDesign::Pad", "Pad002")
body.addObject(pad3)
pad3.Profile = sketch13
pad3.setExpression("Length", "Params.pad3_length")
pad3.Reversed = True

# Sketch on XY plane
sketch14 = doc.addObject("Sketcher::SketchObject", "Sketch013")
body.addObject(sketch14)
sketch14.AttachmentSupport = (doc.XY_Plane, [""])
sketch14.MapMode = "FlatFace"
sketch14.addGeometry(Part.Circle(Vector(0, 304, 0), Vector(0, 0, 1), 30), False)
sketch14.addConstraint([
    Sketcher.Constraint("PointOnObject", 0, 3, -2),
    Sketcher.Constraint("Diameter", 0, 60.0),
    Sketcher.Constraint("DistanceY", -1, 1, 0, 3, 304.453033),
])
sketch14.setExpression("Constraints[1]", "Params.sketch14_diameter")
pocket11 = doc.addObject("PartDesign::Pocket", "Pocket010")
body.addObject(pocket11)
pocket11.Profile = sketch14
pocket11.setExpression("Length", "Params.pocket11_length")

# Sketch on XY plane
sketch15 = doc.addObject("Sketcher::SketchObject", "Sketch014")
body.addObject(sketch15)
sketch15.AttachmentSupport = (doc.XY_Plane, [""])
sketch15.MapMode = "FlatFace"
sketch15.addGeometry([
    Part.Circle(Vector(31.5, 273, 0), Vector(0, 0, 1), 3),
    Part.Circle(Vector(-31.5, 273, 0), Vector(0, 0, 1), 3),
], False)
sketch15.addConstraint([
    Sketcher.Constraint("Equal", 0, 1),
    Sketcher.Constraint("Symmetric", 0, 3, 1, 3, -2),
    Sketcher.Constraint("Diameter", 0, 6.0),
    Sketcher.Constraint("DistanceX", -1, 1, 0, 3, 31.466252),
    Sketcher.Constraint("DistanceY", -1, 1, 0, 3, 272.986782),
])
sketch15.setExpression("Constraints[2]", "Params.sketch15_diameter")
pocket12 = doc.addObject("PartDesign::Pocket", "Pocket011")
body.addObject(pocket12)
pocket12.Profile = sketch15
pocket12.setExpression("Length", "Params.pocket12_length")

doc.recompute()
